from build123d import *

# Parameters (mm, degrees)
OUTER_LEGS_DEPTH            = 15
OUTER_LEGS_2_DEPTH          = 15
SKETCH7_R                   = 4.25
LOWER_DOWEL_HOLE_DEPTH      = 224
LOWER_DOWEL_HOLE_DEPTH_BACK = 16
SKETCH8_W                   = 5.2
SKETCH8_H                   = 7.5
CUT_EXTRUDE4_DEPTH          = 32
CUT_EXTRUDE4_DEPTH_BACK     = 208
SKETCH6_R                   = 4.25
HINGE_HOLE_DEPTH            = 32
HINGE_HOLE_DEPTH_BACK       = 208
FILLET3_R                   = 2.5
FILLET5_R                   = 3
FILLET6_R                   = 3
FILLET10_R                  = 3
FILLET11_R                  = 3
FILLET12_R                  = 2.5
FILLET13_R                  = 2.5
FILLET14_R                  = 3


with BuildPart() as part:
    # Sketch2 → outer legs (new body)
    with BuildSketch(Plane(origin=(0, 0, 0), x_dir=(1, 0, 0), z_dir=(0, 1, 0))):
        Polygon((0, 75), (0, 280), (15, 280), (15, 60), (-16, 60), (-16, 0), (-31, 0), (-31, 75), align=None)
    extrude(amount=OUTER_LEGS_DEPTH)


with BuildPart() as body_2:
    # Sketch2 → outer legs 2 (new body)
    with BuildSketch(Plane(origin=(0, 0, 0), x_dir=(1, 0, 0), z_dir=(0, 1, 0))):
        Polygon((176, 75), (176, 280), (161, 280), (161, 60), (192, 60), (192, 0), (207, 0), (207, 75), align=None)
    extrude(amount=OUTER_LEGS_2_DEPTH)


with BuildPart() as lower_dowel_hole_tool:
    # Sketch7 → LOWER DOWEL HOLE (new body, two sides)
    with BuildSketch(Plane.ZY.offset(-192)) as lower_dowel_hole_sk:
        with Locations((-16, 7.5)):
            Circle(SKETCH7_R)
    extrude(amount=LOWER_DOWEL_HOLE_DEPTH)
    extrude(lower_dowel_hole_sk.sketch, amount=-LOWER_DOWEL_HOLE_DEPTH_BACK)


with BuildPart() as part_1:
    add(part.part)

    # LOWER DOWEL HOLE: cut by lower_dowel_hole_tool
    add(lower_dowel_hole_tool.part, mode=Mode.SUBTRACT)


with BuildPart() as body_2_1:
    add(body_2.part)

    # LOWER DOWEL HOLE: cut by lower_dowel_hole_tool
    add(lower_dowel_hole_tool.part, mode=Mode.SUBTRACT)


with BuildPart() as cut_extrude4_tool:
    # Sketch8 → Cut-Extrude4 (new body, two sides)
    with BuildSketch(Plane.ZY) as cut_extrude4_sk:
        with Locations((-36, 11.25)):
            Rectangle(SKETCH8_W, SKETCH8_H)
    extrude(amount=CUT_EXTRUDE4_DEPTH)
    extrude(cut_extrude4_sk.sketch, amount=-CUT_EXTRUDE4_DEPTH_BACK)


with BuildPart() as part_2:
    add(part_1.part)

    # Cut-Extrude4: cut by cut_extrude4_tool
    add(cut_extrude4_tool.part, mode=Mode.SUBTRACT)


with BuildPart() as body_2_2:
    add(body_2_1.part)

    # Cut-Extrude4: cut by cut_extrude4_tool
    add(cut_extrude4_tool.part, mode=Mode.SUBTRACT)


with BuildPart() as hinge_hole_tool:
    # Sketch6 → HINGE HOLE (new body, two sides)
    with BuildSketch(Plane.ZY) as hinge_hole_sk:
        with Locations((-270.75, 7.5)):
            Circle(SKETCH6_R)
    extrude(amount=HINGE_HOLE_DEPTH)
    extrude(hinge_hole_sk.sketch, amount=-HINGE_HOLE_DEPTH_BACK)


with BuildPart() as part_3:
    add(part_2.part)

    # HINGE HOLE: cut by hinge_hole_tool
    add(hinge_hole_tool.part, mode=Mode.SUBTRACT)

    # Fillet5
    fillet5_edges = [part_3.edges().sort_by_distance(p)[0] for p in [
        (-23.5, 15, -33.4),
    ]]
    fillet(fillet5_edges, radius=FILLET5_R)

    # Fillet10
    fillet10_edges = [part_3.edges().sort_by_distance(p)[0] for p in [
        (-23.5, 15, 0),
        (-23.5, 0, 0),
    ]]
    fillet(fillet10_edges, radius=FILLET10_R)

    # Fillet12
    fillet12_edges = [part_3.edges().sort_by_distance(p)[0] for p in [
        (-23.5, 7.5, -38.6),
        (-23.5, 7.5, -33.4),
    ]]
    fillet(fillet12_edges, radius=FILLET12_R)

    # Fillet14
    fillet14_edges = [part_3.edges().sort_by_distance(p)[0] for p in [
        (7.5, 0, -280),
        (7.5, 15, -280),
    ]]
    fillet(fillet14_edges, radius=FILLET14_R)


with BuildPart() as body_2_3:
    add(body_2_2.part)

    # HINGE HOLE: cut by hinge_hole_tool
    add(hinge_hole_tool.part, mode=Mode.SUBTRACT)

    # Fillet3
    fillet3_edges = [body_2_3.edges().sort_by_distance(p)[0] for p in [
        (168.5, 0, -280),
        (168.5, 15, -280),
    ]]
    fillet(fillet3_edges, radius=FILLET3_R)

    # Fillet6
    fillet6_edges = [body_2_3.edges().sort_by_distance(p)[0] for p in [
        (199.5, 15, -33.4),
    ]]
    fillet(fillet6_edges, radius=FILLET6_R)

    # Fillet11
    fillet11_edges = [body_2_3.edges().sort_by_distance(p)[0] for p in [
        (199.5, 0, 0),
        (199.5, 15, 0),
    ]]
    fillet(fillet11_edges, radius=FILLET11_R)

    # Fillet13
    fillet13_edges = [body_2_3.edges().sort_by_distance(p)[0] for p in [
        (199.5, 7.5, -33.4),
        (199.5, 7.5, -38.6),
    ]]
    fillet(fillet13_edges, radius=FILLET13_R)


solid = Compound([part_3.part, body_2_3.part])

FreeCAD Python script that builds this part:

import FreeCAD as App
import Part
import Sketcher

V = App.Vector


def edges_at(feature, points):
    """Names of the edges that pass closest to the given points."""
    edges = feature.Shape.Edges
    near = lambda p: min(range(len(edges)), key=lambda i: edges[i].distToShape(Part.Vertex(*p))[0])
    return sorted({f"Edge{near(p) + 1}" for p in points})


def add_polygon(sketch, points):
    """Adds a closed chain of lines whose ends are joined by coincident constraints."""
    first, n = sketch.GeometryCount, len(points)
    for a, b in zip(points, points[1:] + points[:1]):
        sketch.addGeometry(Part.LineSegment(App.Vector(*a, 0), App.Vector(*b, 0)), False)
    for i in range(n):
        sketch.addConstraint(Sketcher.Constraint("Coincident", first + i, 2, first + (i + 1) % n, 1))

doc = App.newDocument("Part")
params = doc.addObject("Spreadsheet::Sheet", "Params")
for row, (alias, value) in enumerate([
    ("sketch1_width", "31 mm"),
    ("sketch1_width2", "15 mm"),
    ("sketch1_height", "205 mm"),
    ("sketch1_height2", "75 mm"),
    ("sketch1_height3", "60 mm"),
    ("pad1_length", "15 mm"),
    ("sketch2_width", "15 mm"),
    ("sketch2_width2", "31 mm"),
    ("sketch2_height", "205 mm"),
    ("sketch2_height2", "220 mm"),
    ("sketch2_height3", "60 mm"),
    ("pad2_length", "15 mm"),
    ("sketch3_diameter", "8.5 mm"),
    ("pad3_length", "224 mm"),
    ("pad3_length2", "16 mm"),
    ("sketch4_width", "7.5 mm"),
    ("sketch4_height", "5.2 mm"),
    ("pad4_length", "32 mm"),
    ("pad4_length2", "208 mm"),
    ("sketch5_diameter", "8.5 mm"),
    ("pad5_length", "32 mm"),
    ("pad5_length2", "208 mm"),
    ("fillet_radius", "3 mm"),
    ("fillet2_radius", "3 mm"),
    ("fillet3_radius", "2.5 mm"),
    ("fillet4_radius", "3 mm"),
    ("fillet5_radius", "2.5 mm"),
    ("fillet6_radius", "3 mm"),
    ("fillet7_radius", "3 mm"),
    ("fillet8_radius", "2.5 mm"),
], start=1):
    params.set(f"A{row}", alias)
    params.set(f"B{row}", "=" + value)
    params.setAlias(f"B{row}", alias)

body = doc.addObject("PartDesign::Body", "Body")

sketch1 = body.newObject("Sketcher::SketchObject", "Sketch")
sketch1.AttachmentSupport = (doc.getObject("XZ_Plane"), [""])
sketch1.MapMode = "FlatFace"
add_polygon(sketch1, [(0, -280), (0, -75), (-31, -75), (-31, 0), (-16, 0), (-16, -60), (15, -60), (15, -280)])
sketch1.addConstraint([
    Sketcher.Constraint("Vertical", 0),
    Sketcher.Constraint("Horizontal", 1),
    Sketcher.Constraint("Vertical", 2),
    Sketcher.Constraint("Horizontal", 3),
    Sketcher.Constraint("Vertical", 4),
    Sketcher.Constraint("Horizontal", 5),
    Sketcher.Constraint("Vertical", 6),
    Sketcher.Constraint("Horizontal", 7),
    Sketcher.Constraint("PointOnObject", 0, 2, -2),
    Sketcher.Constraint("PointOnObject", 2, 2, -1),
    Sketcher.Constraint("Equal", 1, 5),
    Sketcher.Constraint("DistanceX", 1, 2, 1, 1, 31.0),
    Sketcher.Constraint("DistanceX", 3, 1, 3, 2, 15.0),
    Sketcher.Constraint("DistanceY", 0, 1, 0, 2, 205.0),
    Sketcher.Constraint("DistanceY", 2, 1, 2, 2, 75.0),
    Sketcher.Constraint("DistanceY", 4, 2, 4, 1, 60.0),
])
sketch1.setExpression("Constraints[19]", "Params.sketch1_width")
sketch1.setExpression("Constraints[20]", "Params.sketch1_width2")
sketch1.setExpression("Constraints[21]", "Params.sketch1_height")
sketch1.setExpression("Constraints[22]", "Params.sketch1_height2")
sketch1.setExpression("Constraints[23]", "Params.sketch1_height3")
pad1 = body.newObject("PartDesign::Pad", "Pad")
pad1.Profile = sketch1
pad1.setExpression("Length", "Params.pad1_length")
pad1.Reversed = True
body2 = doc.addObject("PartDesign::Body", "Body001")

sketch2 = body2.newObject("Sketcher::SketchObject", "Sketch001")
sketch2.AttachmentSupport = (doc.getObject("XZ_Plane001"), [""])
sketch2.MapMode = "FlatFace"
add_polygon(sketch2, [(176, -75), (176, -280), (161, -280), (161, -60), (192, -60), (192, 0), (207, 0), (207, -75)])
sketch2.addConstraint([
    Sketcher.Constraint("Vertical", 0),
    Sketcher.Constraint("Horizontal", 1),
    Sketcher.Constraint("Vertical", 2),
    Sketcher.Constraint("Horizontal", 3),
    Sketcher.Constraint("Vertical", 4),
    Sketcher.Constraint("Horizontal", 5),
    Sketcher.Constraint("Vertical", 6),
    Sketcher.Constraint("Horizontal", 7),
    Sketcher.Constraint("PointOnObject", 4, 2, -1),
    Sketcher.Constraint("Equal", 1, 5),
    Sketcher.Constraint("DistanceX", 1, 2, 1, 1, 15.0),
    Sketcher.Constraint("DistanceX", 3, 1, 3, 2, 31.0),
    Sketcher.Constraint("DistanceY", 0, 2, 0, 1, 205.0),
    Sketcher.Constraint("DistanceY", 2, 1, 2, 2, 220.0),
    Sketcher.Constraint("DistanceY", 4, 1, 4, 2, 60.0),
    Sketcher.Constraint("DistanceX", -1, 1, 0, 2, 176.0),
])
sketch2.setExpression("Constraints[18]", "Params.sketch2_width")
sketch2.setExpression("Constraints[19]", "Params.sketch2_width2")
sketch2.setExpression("Constraints[20]", "Params.sketch2_height")
sketch2.setExpression("Constraints[21]", "Params.sketch2_height2")
sketch2.setExpression("Constraints[22]", "Params.sketch2_height3")
pad2 = body2.newObject("PartDesign::Pad", "Pad001")
pad2.Profile = sketch2
pad2.setExpression("Length", "Params.pad2_length")
pad2.Reversed = True
body3 = doc.addObject("PartDesign::Body", "Body002")

sketch3 = body3.newObject("Sketcher::SketchObject", "Sketch002")
sketch3.AttachmentSupport = (doc.getObject("YZ_Plane002"), [""])
sketch3.MapMode = "FlatFace"
sketch3.AttachmentOffset = App.Placement(V(0, 0, 192), App.Rotation())
sketch3.addGeometry(Part.Circle(V(7.5, -16, 0), V(0, 0, 1), 4.2), False)
sketch3.addConstraint([
    Sketcher.Constraint("Diameter", 0, 8.5),
    Sketcher.Constraint("DistanceY", 0, 3, -1, 1, 16.0),
    Sketcher.Constraint("DistanceX", -1, 1, 0, 3, 7.5),
])
sketch3.setExpression("Constraints[0]", "Params.sketch3_diameter")
pad3 = body3.newObject("PartDesign::Pad", "Pad002")
pad3.Profile = sketch3
pad3.Type = "TwoLengths"
pad3.setExpression("Length", "Params.pad3_length")
pad3.setExpression("Length2", "Params.pad3_length2")
pad3.Reversed = True
doc.recompute()

body4 = doc.addObject("PartDesign::Body", "Body003")
body4.BaseFeature = body3
boolean = body.newObject("PartDesign::Boolean", "Boolean")
boolean.Type = "Cut"
boolean.addObjects([body4])
doc.recompute()

boolean2 = body2.newObject("PartDesign::Boolean", "Boolean001")
boolean2.Type = "Cut"
boolean2.addObjects([body3])
body5 = doc.addObject("PartDesign::Body", "Body004")

sketch4 = body5.newObject("Sketcher::SketchObject", "Sketch003")
sketch4.AttachmentSupport = (doc.getObject("YZ_Plane004"), [""])
sketch4.MapMode = "FlatFace"
add_polygon(sketch4, [(15, -39), (8, -39), (8, -33), (15, -33)])
sketch4.addConstraint([
    Sketcher.Constraint("Horizontal", 0),
    Sketcher.Constraint("Vertical", 1),
    Sketcher.Constraint("Horizontal", 2),
    Sketcher.Constraint("Vertical", 3),
    Sketcher.Constraint("DistanceX", 0, 2, 0, 1, 7.5),
    Sketcher.Constraint("DistanceY", 1, 1, 1, 2, 5.2),
    Sketcher.Constraint("DistanceX", -1, 1, 2, 2, 15.0),
    Sketcher.Constraint("DistanceY", 0, 2, -1, 1, 38.6),
])
sketch4.setExpression("Constraints[8]", "Params.sketch4_width")
sketch4.setExpression("Constraints[9]", "Params.sketch4_height")
pad4 = body5.newObject("PartDesign::Pad", "Pad003")
pad4.Profile = sketch4
pad4.Type = "TwoLengths"
pad4.setExpression("Length", "Params.pad4_length")
pad4.setExpression("Length2", "Params.pad4_length2")
pad4.Reversed = True
doc.recompute()

body6 = doc.addObject("PartDesign::Body", "Body005")
body6.BaseFeature = body5
boolean3 = body.newObject("PartDesign::Boolean", "Boolean002")
boolean3.Type = "Cut"
boolean3.addObjects([body6])
doc.recompute()

boolean4 = body2.newObject("PartDesign::Boolean", "Boolean003")
boolean4.Type = "Cut"
boolean4.addObjects([body5])
body7 = doc.addObject("PartDesign::Body", "Body006")

sketch5 = body7.newObject("Sketcher::SketchObject", "Sketch004")
sketch5.AttachmentSupport = (doc.getObject("YZ_Plane006"), [""])
sketch5.MapMode = "FlatFace"
sketch5.addGeometry(Part.Circle(V(7.5, -270.8, 0), V(0, 0, 1), 4.2), False)
sketch5.addConstraint([
    Sketcher.Constraint("Diameter", 0, 8.5),
    Sketcher.Constraint("DistanceX", -1, 1, 0, 3, 7.5),
    Sketcher.Constraint("DistanceY", 0, 3, -1, 1, 270.75),
])
sketch5.setExpression("Constraints[0]", "Params.sketch5_diameter")
pad5 = body7.newObject("PartDesign::Pad", "Pad004")
pad5.Profile = sketch5
pad5.Type = "TwoLengths"
pad5.setExpression("Length", "Params.pad5_length")
pad5.setExpression("Length2", "Params.pad5_length2")
pad5.Reversed = True
doc.recompute()

body8 = doc.addObject("PartDesign::Body", "Body007")
body8.BaseFeature = body7
boolean5 = body.newObject("PartDesign::Boolean", "Boolean004")
boolean5.Type = "Cut"
boolean5.addObjects([body8])
doc.recompute()

fillet = body.newObject("PartDesign::Fillet", "Fillet")
fillet.Base = (boolean5, edges_at(boolean5, [(-23.5, 15, -33.4)]))
fillet.setExpression("Radius", "Params.fillet_radius")
doc.recompute()

fillet2 = body.newObject("PartDesign::Fillet", "Fillet001")
fillet2.Base = (fillet, edges_at(fillet, [(-23.5, 15, 0), (-23.5, 0, 0)]))
fillet2.setExpression("Radius", "Params.fillet2_radius")
doc.recompute()

fillet3 = body.newObject("PartDesign::Fillet", "Fillet002")
fillet3.Base = (fillet2, edges_at(fillet2, [(-23.5, 7.5, -38.6), (-23.5, 7.5, -33.4)]))
fillet3.setExpression("Radius", "Params.fillet3_radius")
doc.recompute()

fillet4 = body.newObject("PartDesign::Fillet", "Fillet003")
fillet4.Base = (fillet3, edges_at(fillet3, [(7.5, 0, -280), (7.5, 15, -280)]))
fillet4.setExpression("Radius", "Params.fillet4_radius")
doc.recompute()

boolean6 = body2.newObject("PartDesign::Boolean", "Boolean005")
boolean6.Type = "Cut"
boolean6.addObjects([body7])
doc.recompute()

fillet5 = body2.newObject("PartDesign::Fillet", "Fillet004")
fillet5.Base = (boolean6, edges_at(boolean6, [(168.5, 0, -280), (168.5, 15, -280)]))
fillet5.setExpression("Radius", "Params.fillet5_radius")
doc.recompute()

fillet6 = body2.newObject("PartDesign::Fillet", "Fillet005")
fillet6.Base = (fillet5, edges_at(fillet5, [(199.5, 15, -33.4)]))
fillet6.setExpression("Radius", "Params.fillet6_radius")
doc.recompute()

fillet7 = body2.newObject("PartDesign::Fillet", "Fillet006")
fillet7.Base = (fillet6, edges_at(fillet6, [(199.5, 0, 0), (199.5, 15, 0)]))
fillet7.setExpression("Radius", "Params.fillet7_radius")
doc.recompute()

fillet8 = body2.newObject("PartDesign::Fillet", "Fillet007")
fillet8.Base = (fillet7, edges_at(fillet7, [(199.5, 7.5, -33.4), (199.5, 7.5, -38.6)]))
fillet8.setExpression("Radius", "Params.fillet8_radius")

doc.recompute()
